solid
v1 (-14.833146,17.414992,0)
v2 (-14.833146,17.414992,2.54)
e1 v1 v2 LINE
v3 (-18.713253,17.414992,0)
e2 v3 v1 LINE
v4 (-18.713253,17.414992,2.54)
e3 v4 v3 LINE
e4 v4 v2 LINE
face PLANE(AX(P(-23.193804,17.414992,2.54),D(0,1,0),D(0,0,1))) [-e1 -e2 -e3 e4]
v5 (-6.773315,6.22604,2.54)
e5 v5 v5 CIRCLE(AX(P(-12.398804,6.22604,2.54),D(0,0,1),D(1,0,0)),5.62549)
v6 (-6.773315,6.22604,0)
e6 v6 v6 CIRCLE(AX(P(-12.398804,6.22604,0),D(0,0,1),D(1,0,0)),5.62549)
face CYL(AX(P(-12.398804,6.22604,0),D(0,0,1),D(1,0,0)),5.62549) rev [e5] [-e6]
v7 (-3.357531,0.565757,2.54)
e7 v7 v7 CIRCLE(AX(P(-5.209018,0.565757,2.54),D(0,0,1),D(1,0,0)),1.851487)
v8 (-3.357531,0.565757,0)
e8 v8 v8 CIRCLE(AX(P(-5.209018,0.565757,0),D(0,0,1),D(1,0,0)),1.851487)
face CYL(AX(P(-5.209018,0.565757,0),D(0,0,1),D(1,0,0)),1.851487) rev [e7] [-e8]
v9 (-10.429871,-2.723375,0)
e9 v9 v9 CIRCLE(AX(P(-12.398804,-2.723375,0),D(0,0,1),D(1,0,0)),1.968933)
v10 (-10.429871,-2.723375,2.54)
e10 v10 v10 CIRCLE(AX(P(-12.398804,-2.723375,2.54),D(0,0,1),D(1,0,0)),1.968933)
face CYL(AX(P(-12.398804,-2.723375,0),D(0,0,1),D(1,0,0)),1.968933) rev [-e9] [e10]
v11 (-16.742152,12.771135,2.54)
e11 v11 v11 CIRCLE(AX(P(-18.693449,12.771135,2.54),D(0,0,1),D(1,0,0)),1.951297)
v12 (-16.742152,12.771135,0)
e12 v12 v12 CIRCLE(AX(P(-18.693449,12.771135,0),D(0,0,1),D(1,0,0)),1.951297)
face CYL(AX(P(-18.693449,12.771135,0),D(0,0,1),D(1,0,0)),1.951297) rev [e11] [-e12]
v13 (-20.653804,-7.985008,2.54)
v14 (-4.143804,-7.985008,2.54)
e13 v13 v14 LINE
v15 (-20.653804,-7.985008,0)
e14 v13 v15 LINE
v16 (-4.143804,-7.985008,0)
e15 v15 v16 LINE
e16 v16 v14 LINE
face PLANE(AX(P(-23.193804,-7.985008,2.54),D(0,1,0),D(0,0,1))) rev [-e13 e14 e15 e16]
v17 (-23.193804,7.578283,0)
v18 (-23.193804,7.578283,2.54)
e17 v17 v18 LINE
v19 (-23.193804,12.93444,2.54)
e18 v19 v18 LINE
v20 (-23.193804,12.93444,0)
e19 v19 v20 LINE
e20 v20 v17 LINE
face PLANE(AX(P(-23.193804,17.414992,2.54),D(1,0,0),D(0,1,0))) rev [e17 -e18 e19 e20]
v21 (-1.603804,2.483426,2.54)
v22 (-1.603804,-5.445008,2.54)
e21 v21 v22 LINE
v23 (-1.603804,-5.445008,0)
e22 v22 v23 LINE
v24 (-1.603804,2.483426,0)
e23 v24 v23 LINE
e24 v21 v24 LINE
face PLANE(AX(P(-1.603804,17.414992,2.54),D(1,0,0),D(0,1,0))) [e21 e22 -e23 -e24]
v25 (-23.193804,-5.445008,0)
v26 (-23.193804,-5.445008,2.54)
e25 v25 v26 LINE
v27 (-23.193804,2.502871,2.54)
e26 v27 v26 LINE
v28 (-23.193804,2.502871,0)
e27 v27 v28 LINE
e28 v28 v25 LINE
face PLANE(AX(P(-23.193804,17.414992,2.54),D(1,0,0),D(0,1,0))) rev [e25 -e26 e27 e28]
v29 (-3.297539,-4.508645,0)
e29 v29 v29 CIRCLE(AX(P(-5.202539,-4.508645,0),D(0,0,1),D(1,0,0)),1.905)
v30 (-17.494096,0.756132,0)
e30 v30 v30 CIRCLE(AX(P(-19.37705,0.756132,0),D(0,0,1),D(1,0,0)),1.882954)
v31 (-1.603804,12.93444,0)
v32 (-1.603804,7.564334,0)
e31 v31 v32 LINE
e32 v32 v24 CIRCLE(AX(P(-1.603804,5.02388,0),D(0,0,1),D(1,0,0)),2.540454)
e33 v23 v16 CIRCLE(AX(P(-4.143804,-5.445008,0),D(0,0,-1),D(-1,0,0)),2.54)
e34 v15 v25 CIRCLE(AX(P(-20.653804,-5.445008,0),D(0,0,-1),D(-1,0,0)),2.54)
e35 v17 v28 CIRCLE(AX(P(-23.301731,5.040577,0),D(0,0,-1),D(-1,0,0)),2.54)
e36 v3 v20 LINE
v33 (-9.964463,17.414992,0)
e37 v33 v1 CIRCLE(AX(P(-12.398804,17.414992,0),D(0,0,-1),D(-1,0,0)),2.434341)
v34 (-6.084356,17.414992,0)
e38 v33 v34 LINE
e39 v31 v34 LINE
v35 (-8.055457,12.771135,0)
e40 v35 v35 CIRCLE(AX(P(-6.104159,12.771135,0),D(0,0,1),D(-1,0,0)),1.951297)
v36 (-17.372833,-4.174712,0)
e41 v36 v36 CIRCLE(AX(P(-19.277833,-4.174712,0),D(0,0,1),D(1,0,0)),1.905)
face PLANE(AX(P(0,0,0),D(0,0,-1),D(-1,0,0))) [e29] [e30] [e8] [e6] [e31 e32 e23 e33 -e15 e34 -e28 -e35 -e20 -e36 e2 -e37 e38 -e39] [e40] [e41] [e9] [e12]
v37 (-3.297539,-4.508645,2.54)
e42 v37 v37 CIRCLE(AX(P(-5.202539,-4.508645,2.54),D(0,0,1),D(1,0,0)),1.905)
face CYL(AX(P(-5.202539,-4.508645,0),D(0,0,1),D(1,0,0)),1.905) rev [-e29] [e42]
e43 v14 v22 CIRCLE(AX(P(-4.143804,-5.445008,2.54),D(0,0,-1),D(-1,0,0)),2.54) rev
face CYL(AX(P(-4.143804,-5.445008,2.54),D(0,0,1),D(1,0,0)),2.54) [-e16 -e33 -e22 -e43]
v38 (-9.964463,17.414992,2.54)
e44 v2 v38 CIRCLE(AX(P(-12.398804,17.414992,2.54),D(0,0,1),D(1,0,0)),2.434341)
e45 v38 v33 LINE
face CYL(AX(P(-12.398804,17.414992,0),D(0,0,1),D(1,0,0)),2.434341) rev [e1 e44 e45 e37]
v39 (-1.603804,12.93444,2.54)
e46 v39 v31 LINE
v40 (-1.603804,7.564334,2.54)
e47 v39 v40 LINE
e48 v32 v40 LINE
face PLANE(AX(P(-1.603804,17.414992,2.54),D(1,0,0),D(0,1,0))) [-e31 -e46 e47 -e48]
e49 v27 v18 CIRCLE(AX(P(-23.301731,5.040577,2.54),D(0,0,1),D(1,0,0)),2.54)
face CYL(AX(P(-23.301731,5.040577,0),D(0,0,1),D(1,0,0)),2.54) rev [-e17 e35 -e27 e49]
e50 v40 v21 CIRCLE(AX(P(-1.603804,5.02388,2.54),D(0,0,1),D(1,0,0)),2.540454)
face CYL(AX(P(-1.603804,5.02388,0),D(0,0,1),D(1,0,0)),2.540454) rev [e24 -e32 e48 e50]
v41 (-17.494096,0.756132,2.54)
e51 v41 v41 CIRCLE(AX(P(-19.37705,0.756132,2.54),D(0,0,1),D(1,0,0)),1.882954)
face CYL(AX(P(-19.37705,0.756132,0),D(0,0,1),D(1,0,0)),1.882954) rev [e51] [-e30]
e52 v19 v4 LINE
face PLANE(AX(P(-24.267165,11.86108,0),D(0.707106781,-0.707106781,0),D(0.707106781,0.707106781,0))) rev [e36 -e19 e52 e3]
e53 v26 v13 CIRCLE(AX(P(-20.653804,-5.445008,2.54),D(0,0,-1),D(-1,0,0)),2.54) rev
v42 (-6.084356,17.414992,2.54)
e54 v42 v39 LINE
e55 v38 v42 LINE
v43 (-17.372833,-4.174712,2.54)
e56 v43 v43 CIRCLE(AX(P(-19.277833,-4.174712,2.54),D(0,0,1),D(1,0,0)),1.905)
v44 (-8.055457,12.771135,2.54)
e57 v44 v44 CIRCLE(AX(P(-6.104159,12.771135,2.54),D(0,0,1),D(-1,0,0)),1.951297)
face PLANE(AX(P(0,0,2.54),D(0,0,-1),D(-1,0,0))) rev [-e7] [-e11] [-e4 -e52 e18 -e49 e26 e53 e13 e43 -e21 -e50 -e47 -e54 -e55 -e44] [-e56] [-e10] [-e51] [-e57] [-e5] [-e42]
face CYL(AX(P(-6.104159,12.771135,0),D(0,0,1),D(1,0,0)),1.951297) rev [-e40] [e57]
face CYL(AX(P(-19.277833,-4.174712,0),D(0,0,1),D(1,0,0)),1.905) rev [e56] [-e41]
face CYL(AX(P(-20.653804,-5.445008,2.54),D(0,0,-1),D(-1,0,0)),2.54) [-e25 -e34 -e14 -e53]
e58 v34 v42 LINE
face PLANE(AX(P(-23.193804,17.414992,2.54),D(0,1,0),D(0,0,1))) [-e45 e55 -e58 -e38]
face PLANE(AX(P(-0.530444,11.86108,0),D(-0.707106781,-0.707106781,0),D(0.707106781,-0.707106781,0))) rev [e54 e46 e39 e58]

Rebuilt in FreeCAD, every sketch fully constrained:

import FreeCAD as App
import Part
import Sketcher

V = App.Vector
Q = App.Units.Quantity


def edges_at(feature, points):
    """Names of the edges that pass closest to the given points."""
    edges = feature.Shape.Edges
    near = lambda p: min(range(len(edges)), key=lambda i: edges[i].distToShape(Part.Vertex(*p))[0])
    return sorted({f"Edge{near(p) + 1}" for p in points})

doc = App.newDocument("Part")
body = doc.addObject("PartDesign::Body", "Body")

# Sketch on XY plane
sketch1 = body.newObject("Sketcher::SketchObject", "Sketch")
sketch1.AttachmentSupport = (doc.getObject("XY_Plane"), [""])
sketch1.MapMode = "FlatFace"
sketch1.addGeometry([
    Part.LineSegment(V(-23.193804, 17.414992, 0), V(-23.193804, -7.985008, 0)),
    Part.LineSegment(V(-23.193804, -7.985008, 0), V(-1.603804, -7.985008, 0)),
    Part.LineSegment(V(-1.603804, -7.985008, 0), V(-1.603804, 17.414992, 0)),
    Part.LineSegment(V(-1.603804, 17.414992, 0), V(-23.193804, 17.414992, 0)),
], False)
sketch1.addConstraint([
    Sketcher.Constraint("Coincident", 0, 2, 1, 1),
    Sketcher.Constraint("Coincident", 1, 2, 2, 1),
    Sketcher.Constraint("Coincident", 2, 2, 3, 1),
    Sketcher.Constraint("Coincident", 3, 2, 0, 1),
    Sketcher.Constraint("Vertical", 0),
    Sketcher.Constraint("Horizontal", 1),
    Sketcher.Constraint("Vertical", 2),
    Sketcher.Constraint("Horizontal", 3),
    Sketcher.Constraint("DistanceY", 0, 2, 0, 1, Q("1 in")),
    Sketcher.Constraint("DistanceX", 1, 1, 1, 2, Q("0.85 in")),
    Sketcher.Constraint("DistanceY", 0, 2, -1, 1, Q("7.985008 mm")),
    Sketcher.Constraint("DistanceX", 0, 2, -1, 1, Q("23.193804 mm")),
])
pad1 = body.newObject("PartDesign::Pad", "Pad")
pad1.Profile = sketch1
pad1.Length = Q("0.1 in")
doc.recompute()

fillet = body.newObject("PartDesign::Fillet", "Fillet")
fillet.Base = (pad1, edges_at(pad1, [(-23.194, -7.985, 1.27), (-1.604, -7.985, 1.27)]))
fillet.Radius = Q("0.1 in")

# Sketch on XY plane
sketch2 = body.newObject("Sketcher::SketchObject", "Sketch001")
sketch2.AttachmentSupport = (doc.getObject("XY_Plane"), [""])
sketch2.MapMode = "FlatFace"
sketch2.AttachmentOffset = App.Placement(V(0, 0, 0.1 * 25.4), App.Rotation())
sketch2.addGeometry([
    Part.LineSegment(V(-24.267165, 11.86108, 0), V(-17.410801, 18.717443, 0)),  # 0
    Part.LineSegment(V(-17.410801, 18.717443, 0), V(-24.267165, 18.717443, 0)),  # 1
    Part.LineSegment(V(-24.267165, 18.717443, 0), V(-24.267165, 11.86108, 0)),  # 2
    Part.LineSegment(V(-0.530444, 18.717443, 0), V(-7.386807, 18.717443, 0)),  # 3
    Part.LineSegment(V(-7.386807, 18.717443, 0), V(-0.530444, 11.86108, 0)),  # 4
    Part.LineSegment(V(-0.530444, 11.86108, 0), V(-0.530444, 18.717443, 0)),  # 5
], False)
sketch2.addConstraint([
    Sketcher.Constraint("Coincident", 0, 2, 1, 1),
    Sketcher.Constraint("Coincident", 1, 2, 2, 1),
    Sketcher.Constraint("Coincident", 2, 2, 0, 1),
    Sketcher.Constraint("Coincident", 3, 2, 4, 1),
    Sketcher.Constraint("Coincident", 4, 2, 5, 1),
    Sketcher.Constraint("Coincident", 5, 2, 3, 1),
    Sketcher.Constraint("Horizontal", 1),
    Sketcher.Constraint("Vertical", 2),
    Sketcher.Constraint("Horizontal", 3),
    Sketcher.Constraint("Vertical", 5),
    Sketcher.Constraint("Perpendicular", 0, 4),
    Sketcher.Constraint("Horizontal", 1, 2, 3, 2),
    Sketcher.Constraint("Horizontal", 2, 2, 4, 2),
    Sketcher.Constraint("Equal", 1, 3),
    Sketcher.Constraint("DistanceX", 1, 2, -1, 1, Q("0.9554002 in")),
    Sketcher.Constraint("DistanceX", 0, 2, -1, 1, Q("17.410801 mm")),
    Sketcher.Constraint("DistanceY", -1, 1, 2, 2, Q("11.86108 mm")),
    Sketcher.Constraint("DistanceX", 2, 2, 4, 2, Q("23.73672 mm")),
])
pocket1 = body.newObject("PartDesign::Pocket", "Pocket")
pocket1.Profile = sketch2
pocket1.Type = "ThroughAll"

# Sketch on XY plane
sketch3 = body.newObject("Sketcher::SketchObject", "Sketch002")
sketch3.AttachmentSupport = (doc.getObject("XY_Plane"), [""])
sketch3.MapMode = "FlatFace"
sketch3.AttachmentOffset = App.Placement(V(0, 0, 0.1 * 25.4), App.Rotation())
sketch3.addGeometry([
    Part.Circle(V(-12.398804, 6.22604, 0), V(0, 0, 1), 5.62549),  # 0
    Part.Circle(V(-23.301731, 5.040577, 0), V(0, 0, 1), 2.54),  # 1
    Part.Circle(V(-1.603804, 5.02388, 0), V(0, 0, 1), 2.540454),  # 2
    Part.Circle(V(-18.693449, 12.771135, 0), V(0, 0, 1), 1.951297),  # 3
    Part.Circle(V(-12.398804, 17.414992, 0), V(0, 0, 1), 2.434341),  # 4
    Part.Circle(V(-6.104159, 12.771135, 0), V(0, 0, 1), 1.951297),  # 5
    Part.Circle(V(-12.398804, -2.723375, 0), V(0, 0, 1), 1.968933),  # 6
    Part.Circle(V(-19.277833, -4.174712, 0), V(0, 0, 1), 1.905),  # 7
    Part.Circle(V(-5.202539, -4.508645, 0), V(0, 0, 1), 1.905),  # 8
], False)
sketch3.addConstraint([
    Sketcher.Constraint("Equal", 3, 5),
    Sketcher.Constraint("Equal", 7, 8),
    Sketcher.Constraint("Horizontal", 3, 3, 5, 3),
    Sketcher.Constraint("Vertical", 0, 3, 4, 3),
    Sketcher.Constraint("Vertical", 4, 3, 6, 3),
    Sketcher.Constraint("Diameter", 1, Q("0.2 in")),
    Sketcher.Constraint("Diameter", 7, Q("0.15 in")),
    Sketcher.Constraint("Diameter", 0, Q("11.25098 mm")),
    Sketcher.Constraint("DistanceX", 0, 3, 2, 3, Q("0.425 in")),
    Sketcher.Constraint("Diameter", 2, Q("5.080907 mm")),
    Sketcher.Constraint("Diameter", 3, Q("3.902595 mm")),
    Sketcher.Constraint("Diameter", 4, Q("4.868683 mm")),
    Sketcher.Constraint("Diameter", 6, Q("3.937867 mm")),
    Sketcher.Constraint("DistanceY", -1, 1, 0, 3, Q("6.22604 mm")),
    Sketcher.Constraint("DistanceX", 1, 3, -1, 1, Q("23.301731 mm")),
    Sketcher.Constraint("DistanceY", -1, 1, 2, 3, Q("5.02388 mm")),
    Sketcher.Constraint("DistanceX", 3, 3, -1, 1, Q("18.693449 mm")),
    Sketcher.Constraint("DistanceY", -1, 1, 4, 3, Q("17.414992 mm")),
    Sketcher.Constraint("DistanceX", 5, 3, -1, 1, Q("6.104159 mm")),
    Sketcher.Constraint("DistanceY", 7, 3, -1, 1, Q("4.174712 mm")),
    Sketcher.Constraint("DistanceX", 8, 3, -1, 1, Q("5.202539 mm")),
    Sketcher.Constraint("DistanceY", 1, 3, 3, 3, Q("7.730559 mm")),
    Sketcher.Constraint("DistanceY", 6, 3, 3, 3, Q("15.494511 mm")),
    Sketcher.Constraint("DistanceX", 7, 3, 6, 3, Q("6.879028 mm")),
    Sketcher.Constraint("DistanceY", 7, 3, 1, 3, Q("9.215289 mm")),
    Sketcher.Constraint("DistanceY", 8, 3, 6, 3, Q("1.78527 mm")),
    Sketcher.Constraint("DistanceX", 0, 3, -1, 1, Q("12.398804 mm")),
])
pocket2 = body.newObject("PartDesign::Pocket", "Pocket001")
pocket2.Profile = sketch3
pocket2.Type = "ThroughAll"

# Sketch on XY plane
sketch4 = body.newObject("Sketcher::SketchObject", "Sketch003")
sketch4.AttachmentSupport = (doc.getObject("XY_Plane"), [""])
sketch4.MapMode = "FlatFace"
sketch4.AttachmentOffset = App.Placement(V(0, 0, 0.1 * 25.4), App.Rotation())
sketch4.addGeometry([
    Part.Circle(V(-5.209018, 0.565757, 0), V(0, 0, 1), 1.851487),
    Part.Circle(V(-19.37705, 0.756132, 0), V(0, 0, 1), 1.882954),
], False)
sketch4.addConstraint([
    Sketcher.Constraint("Diameter", 1, Q("3.765908 mm")),
    Sketcher.Constraint("Diameter", 0, Q("3.702975 mm")),
    Sketcher.Constraint("DistanceX", 1, 3, -1, 1, Q("19.37705 mm")),
    Sketcher.Constraint("DistanceY", -1, 1, 1, 3, Q("0.756132 mm")),
    Sketcher.Constraint("DistanceX", 0, 3, -1, 1, Q("5.209018 mm")),
    Sketcher.Constraint("DistanceY", -1, 1, 0, 3, Q("0.565757 mm")),
])
pocket3 = body.newObject("PartDesign::Pocket", "Pocket002")
pocket3.Profile = sketch4
pocket3.Type = "ThroughAll"

doc.recompute()
